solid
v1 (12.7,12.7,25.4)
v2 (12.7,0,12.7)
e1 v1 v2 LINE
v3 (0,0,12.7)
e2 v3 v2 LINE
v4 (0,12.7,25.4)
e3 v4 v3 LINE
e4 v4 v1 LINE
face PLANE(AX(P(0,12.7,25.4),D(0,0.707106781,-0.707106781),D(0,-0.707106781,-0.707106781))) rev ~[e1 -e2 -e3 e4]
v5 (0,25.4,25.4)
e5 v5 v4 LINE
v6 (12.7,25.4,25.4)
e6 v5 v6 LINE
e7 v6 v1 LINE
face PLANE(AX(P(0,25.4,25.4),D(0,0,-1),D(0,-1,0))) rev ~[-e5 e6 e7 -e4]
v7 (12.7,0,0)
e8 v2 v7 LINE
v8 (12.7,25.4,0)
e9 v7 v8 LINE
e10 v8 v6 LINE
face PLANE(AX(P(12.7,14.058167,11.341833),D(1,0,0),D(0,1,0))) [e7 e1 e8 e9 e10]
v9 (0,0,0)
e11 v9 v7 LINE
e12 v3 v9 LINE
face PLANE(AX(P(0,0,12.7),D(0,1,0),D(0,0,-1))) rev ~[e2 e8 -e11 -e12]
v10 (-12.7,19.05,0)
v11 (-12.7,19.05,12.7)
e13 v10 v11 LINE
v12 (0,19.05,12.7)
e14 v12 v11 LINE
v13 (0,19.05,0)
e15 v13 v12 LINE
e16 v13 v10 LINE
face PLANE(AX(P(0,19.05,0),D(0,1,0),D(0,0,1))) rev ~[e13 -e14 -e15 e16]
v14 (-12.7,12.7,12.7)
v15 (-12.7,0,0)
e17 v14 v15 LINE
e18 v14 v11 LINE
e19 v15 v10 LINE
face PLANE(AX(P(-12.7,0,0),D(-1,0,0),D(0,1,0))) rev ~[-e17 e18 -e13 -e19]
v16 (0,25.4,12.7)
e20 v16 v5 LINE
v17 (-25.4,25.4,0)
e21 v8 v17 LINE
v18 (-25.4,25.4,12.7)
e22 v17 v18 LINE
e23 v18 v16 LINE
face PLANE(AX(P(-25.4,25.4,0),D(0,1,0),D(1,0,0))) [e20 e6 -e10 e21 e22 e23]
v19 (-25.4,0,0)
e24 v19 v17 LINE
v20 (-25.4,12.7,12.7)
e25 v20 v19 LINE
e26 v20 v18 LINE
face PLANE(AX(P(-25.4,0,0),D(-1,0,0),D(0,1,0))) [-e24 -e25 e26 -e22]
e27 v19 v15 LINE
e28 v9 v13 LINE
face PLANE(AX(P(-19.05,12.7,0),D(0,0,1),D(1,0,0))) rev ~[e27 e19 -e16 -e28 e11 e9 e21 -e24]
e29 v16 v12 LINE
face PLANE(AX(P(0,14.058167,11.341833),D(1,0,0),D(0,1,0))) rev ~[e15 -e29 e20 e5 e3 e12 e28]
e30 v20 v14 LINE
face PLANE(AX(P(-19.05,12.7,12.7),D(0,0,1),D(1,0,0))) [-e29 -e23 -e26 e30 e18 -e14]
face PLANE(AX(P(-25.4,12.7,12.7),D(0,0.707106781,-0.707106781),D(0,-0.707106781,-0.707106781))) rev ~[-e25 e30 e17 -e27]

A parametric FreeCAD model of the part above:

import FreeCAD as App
import Part
import Sketcher
Q = App.Units.Quantity

doc = App.newDocument("Part")
body = doc.addObject("PartDesign::Body", "Body")

# Sketch on YZ plane
sketch1 = doc.addObject("Sketcher::SketchObject", "Sketch")
body.addObject(sketch1)
sketch1.AttachmentSupport = (doc.YZ_Plane, [""])
sketch1.MapMode = "FlatFace"
sketch1.addGeometry(Part.LineSegment(App.Vector(0, 13, 0), App.Vector(0, 0, 0)), False)
sketch1.addGeometry(Part.LineSegment(App.Vector(0, 0, 0), App.Vector(25, 0, 0)), False)
sketch1.addGeometry(Part.LineSegment(App.Vector(25, 0, 0), App.Vector(25, 25, 0)), False)
sketch1.addGeometry(Part.LineSegment(App.Vector(25, 25, 0), App.Vector(13, 25, 0)), False)
sketch1.addGeometry(Part.LineSegment(App.Vector(13, 25, 0), App.Vector(0, 13, 0)), False)
sketch1.addConstraint(Sketcher.Constraint("Coincident", 0, 2, 1, 1))
sketch1.addConstraint(Sketcher.Constraint("Coincident", 1, 2, 2, 1))
sketch1.addConstraint(Sketcher.Constraint("Coincident", 2, 2, 3, 1))
sketch1.addConstraint(Sketcher.Constraint("Coincident", 3, 2, 4, 1))
sketch1.addConstraint(Sketcher.Constraint("Coincident", 4, 2, 0, 1))
sketch1.addConstraint(Sketcher.Constraint("Vertical", 0))
sketch1.addConstraint(Sketcher.Constraint("Horizontal", 1))
sketch1.addConstraint(Sketcher.Constraint("Vertical", 2))
sketch1.addConstraint(Sketcher.Constraint("Horizontal", 3))
sketch1.addConstraint(Sketcher.Constraint("Coincident", 0, 2, -1, 1))
sketch1.addConstraint(Sketcher.Constraint("Equal", 3, 0))
sketch1.addConstraint(Sketcher.Constraint("Equal", 1, 2))
sketch1.addConstraint(Sketcher.Constraint("DistanceX", 1, 1, 1, 2, Q("1 in")))
sketch1.addConstraint(Sketcher.Constraint("DistanceX", 3, 2, 3, 1, Q("0.5 in")))
pad1 = doc.addObject("PartDesign::Pad", "Pad")
body.addObject(pad1)
pad1.Profile = sketch1
pad1.Length = Q("0.5 in")

# Sketch on YZ plane
sketch2 = doc.addObject("Sketcher::SketchObject", "Sketch001")
body.addObject(sketch2)
sketch2.AttachmentSupport = (doc.YZ_Plane, [""])
sketch2.MapMode = "FlatFace"
sketch2.addGeometry(Part.LineSegment(App.Vector(25, 13, 0), App.Vector(25, 0, 0)), False)
sketch2.addGeometry(Part.LineSegment(App.Vector(25, 0, 0), App.Vector(19, 0, 0)), False)
sketch2.addGeometry(Part.LineSegment(App.Vector(19, 0, 0), App.Vector(19, 13, 0)), False)
sketch2.addGeometry(Part.LineSegment(App.Vector(19, 13, 0), App.Vector(25, 13, 0)), False)
sketch2.addConstraint(Sketcher.Constraint("Coincident", 0, 2, 1, 1))
sketch2.addConstraint(Sketcher.Constraint("Coincident", 1, 2, 2, 1))
sketch2.addConstraint(Sketcher.Constraint("Coincident", 2, 2, 3, 1))
sketch2.addConstraint(Sketcher.Constraint("Coincident", 3, 2, 0, 1))
sketch2.addConstraint(Sketcher.Constraint("Vertical", 0))
sketch2.addConstraint(Sketcher.Constraint("Horizontal", 1))
sketch2.addConstraint(Sketcher.Constraint("Vertical", 2))
sketch2.addConstraint(Sketcher.Constraint("Horizontal", 3))
sketch2.addConstraint(Sketcher.Constraint("PointOnObject", 0, 2, -1))
sketch2.addConstraint(Sketcher.Constraint("DistanceY", 0, 2, 0, 1, Q("0.5 in")))
sketch2.addConstraint(Sketcher.Constraint("DistanceX", -1, 1, 0, 2, Q("1 in")))
sketch2.addConstraint(Sketcher.Constraint("DistanceX", 1, 2, 1, 1, Q("0.25 in")))
pad2 = doc.addObject("PartDesign::Pad", "Pad001")
body.addObject(pad2)
pad2.Profile = sketch2
pad2.Length = Q("0.5 in")
pad2.Reversed = True

# Sketch on XY plane
sketch3 = doc.addObject("Sketcher::SketchObject", "Sketch002")
body.addObject(sketch3)
sketch3.AttachmentSupport = (doc.XY_Plane, [""])
sketch3.MapMode = "FlatFace"
sketch3.addGeometry(Part.LineSegment(App.Vector(-25, 25, 0), App.Vector(-25, 0, 0)), False)
sketch3.addGeometry(Part.LineSegment(App.Vector(-25, 0, 0), App.Vector(-13, 0, 0)), False)
sketch3.addGeometry(Part.LineSegment(App.Vector(-13, 0, 0), App.Vector(-13, 25, 0)), False)
sketch3.addGeometry(Part.LineSegment(App.Vector(-13, 25, 0), App.Vector(-25, 25, 0)), False)
sketch3.addConstraint(Sketcher.Constraint("Coincident", 0, 2, 1, 1))
sketch3.addConstraint(Sketcher.Constraint("Coincident", 1, 2, 2, 1))
sketch3.addConstraint(Sketcher.Constraint("Coincident", 2, 2, 3, 1))
sketch3.addConstraint(Sketcher.Constraint("Coincident", 3, 2, 0, 1))
sketch3.addConstraint(Sketcher.Constraint("Vertical", 0))
sketch3.addConstraint(Sketcher.Constraint("Horizontal", 1))
sketch3.addConstraint(Sketcher.Constraint("Vertical", 2))
sketch3.addConstraint(Sketcher.Constraint("Horizontal", 3))
sketch3.addConstraint(Sketcher.Constraint("PointOnObject", 0, 2, -1))
sketch3.addConstraint(Sketcher.Constraint("DistanceY", 0, 2, 0, 1, Q("1 in")))
sketch3.addConstraint(Sketcher.Constraint("DistanceX", 1, 1, 1, 2, Q("0.5 in")))
sketch3.addConstraint(Sketcher.Constraint("DistanceX", 0, 2, -1, 1, Q("1 in")))
pad3 = doc.addObject("PartDesign::Pad", "Pad002")
body.addObject(pad3)
pad3.Profile = sketch3
pad3.Length = Q("0.5 in")

# Sketch on YZ plane
sketch4 = doc.addObject("Sketcher::SketchObject", "Sketch003")
body.addObject(sketch4)
sketch4.AttachmentSupport = (doc.YZ_Plane, [""])
sketch4.MapMode = "FlatFace"
sketch4.AttachmentOffset = App.Placement(App.Vector(0, 0, -1 * 25.4), App.Rotation())
sketch4.addGeometry(Part.LineSegment(App.Vector(0, 13, 0), App.Vector(13, 13, 0)), False)
sketch4.addGeometry(Part.LineSegment(App.Vector(13, 13, 0), App.Vector(0, 0, 0)), False)
sketch4.addGeometry(Part.LineSegment(App.Vector(0, 0, 0), App.Vector(0, 13, 0)), False)
sketch4.addConstraint(Sketcher.Constraint("Coincident", 0, 2, 1, 1))
sketch4.addConstraint(Sketcher.Constraint("Coincident", 1, 2, 2, 1))
sketch4.addConstraint(Sketcher.Constraint("Coincident", 2, 2, 0, 1))
sketch4.addConstraint(Sketcher.Constraint("Horizontal", 0))
sketch4.addConstraint(Sketcher.Constraint("Vertical", 2))
sketch4.addConstraint(Sketcher.Constraint("Coincident", 1, 2, -1, 1))
sketch4.addConstraint(Sketcher.Constraint("Equal", 0, 2))
sketch4.addConstraint(Sketcher.Constraint("DistanceX", 0, 1, 0, 2, Q("0.5 in")))
pocket1 = doc.addObject("PartDesign::Pocket", "Pocket")
body.addObject(pocket1)
pocket1.Profile = sketch4
pocket1.Length = Q("0.5 in")
pocket1.Reversed = True

doc.recompute()
